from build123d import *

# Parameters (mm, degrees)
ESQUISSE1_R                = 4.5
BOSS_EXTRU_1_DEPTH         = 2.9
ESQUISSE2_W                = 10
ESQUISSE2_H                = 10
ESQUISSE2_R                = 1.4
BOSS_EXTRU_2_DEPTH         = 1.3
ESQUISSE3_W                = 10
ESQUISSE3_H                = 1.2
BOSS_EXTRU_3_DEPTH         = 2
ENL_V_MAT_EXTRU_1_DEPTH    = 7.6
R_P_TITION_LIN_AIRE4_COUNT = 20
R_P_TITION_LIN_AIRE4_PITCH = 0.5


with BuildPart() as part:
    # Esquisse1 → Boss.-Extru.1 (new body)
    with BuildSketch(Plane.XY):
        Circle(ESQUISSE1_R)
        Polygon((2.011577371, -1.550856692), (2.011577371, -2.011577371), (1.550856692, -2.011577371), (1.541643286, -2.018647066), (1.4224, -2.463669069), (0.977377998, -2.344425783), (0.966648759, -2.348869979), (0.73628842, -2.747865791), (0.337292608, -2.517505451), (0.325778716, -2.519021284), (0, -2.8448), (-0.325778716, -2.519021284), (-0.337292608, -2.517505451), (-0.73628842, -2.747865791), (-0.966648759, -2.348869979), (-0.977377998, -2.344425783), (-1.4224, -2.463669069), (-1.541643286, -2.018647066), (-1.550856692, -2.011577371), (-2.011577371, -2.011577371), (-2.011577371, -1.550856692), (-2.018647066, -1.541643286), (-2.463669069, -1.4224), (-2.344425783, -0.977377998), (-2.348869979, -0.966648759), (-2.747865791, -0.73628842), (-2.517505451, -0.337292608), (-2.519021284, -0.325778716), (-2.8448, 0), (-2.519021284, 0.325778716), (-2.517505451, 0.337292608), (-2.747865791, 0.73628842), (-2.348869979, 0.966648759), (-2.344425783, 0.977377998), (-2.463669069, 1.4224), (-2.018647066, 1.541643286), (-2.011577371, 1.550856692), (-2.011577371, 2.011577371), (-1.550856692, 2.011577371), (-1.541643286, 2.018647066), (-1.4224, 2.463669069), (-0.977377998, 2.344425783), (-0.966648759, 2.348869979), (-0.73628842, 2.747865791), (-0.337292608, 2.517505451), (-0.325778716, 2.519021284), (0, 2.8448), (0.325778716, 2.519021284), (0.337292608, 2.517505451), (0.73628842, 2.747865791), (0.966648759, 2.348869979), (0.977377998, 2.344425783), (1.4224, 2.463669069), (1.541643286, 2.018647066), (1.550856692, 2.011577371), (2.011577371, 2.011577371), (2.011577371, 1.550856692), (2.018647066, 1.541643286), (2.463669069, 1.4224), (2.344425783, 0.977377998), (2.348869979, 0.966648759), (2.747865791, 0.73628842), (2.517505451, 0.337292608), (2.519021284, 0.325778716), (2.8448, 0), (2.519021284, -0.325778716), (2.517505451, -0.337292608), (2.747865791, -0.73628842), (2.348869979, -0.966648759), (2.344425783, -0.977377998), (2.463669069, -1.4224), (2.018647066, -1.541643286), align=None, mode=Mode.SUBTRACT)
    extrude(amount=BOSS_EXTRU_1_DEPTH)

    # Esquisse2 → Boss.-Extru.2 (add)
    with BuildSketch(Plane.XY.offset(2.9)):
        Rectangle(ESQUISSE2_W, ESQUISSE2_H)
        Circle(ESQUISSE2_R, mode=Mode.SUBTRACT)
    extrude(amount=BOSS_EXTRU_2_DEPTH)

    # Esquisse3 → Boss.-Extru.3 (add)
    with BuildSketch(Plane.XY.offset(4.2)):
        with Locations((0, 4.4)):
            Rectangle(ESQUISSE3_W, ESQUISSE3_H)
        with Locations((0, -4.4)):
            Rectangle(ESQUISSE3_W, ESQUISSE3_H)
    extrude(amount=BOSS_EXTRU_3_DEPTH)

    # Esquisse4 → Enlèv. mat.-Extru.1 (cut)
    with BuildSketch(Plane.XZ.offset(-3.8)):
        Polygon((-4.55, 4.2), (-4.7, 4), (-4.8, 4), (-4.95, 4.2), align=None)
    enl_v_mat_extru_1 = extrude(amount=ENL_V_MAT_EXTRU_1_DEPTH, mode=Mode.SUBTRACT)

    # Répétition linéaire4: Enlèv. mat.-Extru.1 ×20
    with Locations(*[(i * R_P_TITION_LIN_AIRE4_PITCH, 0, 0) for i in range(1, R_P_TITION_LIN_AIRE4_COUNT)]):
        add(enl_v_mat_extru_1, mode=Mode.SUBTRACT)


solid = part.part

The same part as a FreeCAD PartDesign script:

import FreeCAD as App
import Part
import Sketcher
Q = App.Units.Quantity

doc = App.newDocument("Part")
body = doc.addObject("PartDesign::Body", "Body")

# Sketch on XY plane
sketch1 = doc.addObject("Sketcher::SketchObject", "Sketch")
body.addObject(sketch1)
sketch1.AttachmentSupport = (doc.XY_Plane, [""])
sketch1.MapMode = "FlatFace"
sketch1.addGeometry([
    Part.Circle(App.Vector(0, 0, 0), App.Vector(0, 0, 1), 4.5),  # 0
    Part.LineSegment(App.Vector(2.019, -1.542, 0), App.Vector(2.012, -1.551, 0)),  # 1
    Part.LineSegment(App.Vector(2.012, -1.551, 0), App.Vector(2.012, -2.012, 0)),  # 2
    Part.LineSegment(App.Vector(2.012, -2.012, 0), App.Vector(1.551, -2.012, 0)),  # 3
    Part.LineSegment(App.Vector(1.551, -2.012, 0), App.Vector(1.542, -2.019, 0)),  # 4
    Part.LineSegment(App.Vector(1.542, -2.019, 0), App.Vector(1.422, -2.464, 0)),  # 5
    Part.LineSegment(App.Vector(1.422, -2.464, 0), App.Vector(0.977, -2.344, 0)),  # 6
    Part.LineSegment(App.Vector(0.977, -2.344, 0), App.Vector(0.967, -2.349, 0)),  # 7
    Part.LineSegment(App.Vector(0.967, -2.349, 0), App.Vector(0.736, -2.748, 0)),  # 8
    Part.LineSegment(App.Vector(0.736, -2.748, 0), App.Vector(0.337, -2.518, 0)),  # 9
    Part.LineSegment(App.Vector(0.337, -2.518, 0), App.Vector(0.326, -2.519, 0)),  # 10
    Part.LineSegment(App.Vector(0.326, -2.519, 0), App.Vector(0, -2.845, 0)),  # 11
    Part.LineSegment(App.Vector(0, -2.845, 0), App.Vector(-0.326, -2.519, 0)),  # 12
    Part.LineSegment(App.Vector(-0.326, -2.519, 0), App.Vector(-0.337, -2.518, 0)),  # 13
    Part.LineSegment(App.Vector(-0.337, -2.518, 0), App.Vector(-0.736, -2.748, 0)),  # 14
    Part.LineSegment(App.Vector(-0.736, -2.748, 0), App.Vector(-0.967, -2.349, 0)),  # 15
    Part.LineSegment(App.Vector(-0.967, -2.349, 0), App.Vector(-0.977, -2.344, 0)),  # 16
    Part.LineSegment(App.Vector(-0.977, -2.344, 0), App.Vector(-1.422, -2.464, 0)),  # 17
    Part.LineSegment(App.Vector(-1.422, -2.464, 0), App.Vector(-1.542, -2.019, 0)),  # 18
    Part.LineSegment(App.Vector(-1.542, -2.019, 0), App.Vector(-1.551, -2.012, 0)),  # 19
    Part.LineSegment(App.Vector(-1.551, -2.012, 0), App.Vector(-2.012, -2.012, 0)),  # 20
    Part.LineSegment(App.Vector(-2.012, -2.012, 0), App.Vector(-2.012, -1.551, 0)),  # 21
    Part.LineSegment(App.Vector(-2.012, -1.551, 0), App.Vector(-2.019, -1.542, 0)),  # 22
    Part.LineSegment(App.Vector(-2.019, -1.542, 0), App.Vector(-2.464, -1.422, 0)),  # 23
    Part.LineSegment(App.Vector(-2.464, -1.422, 0), App.Vector(-2.344, -0.977, 0)),  # 24
    Part.LineSegment(App.Vector(-2.344, -0.977, 0), App.Vector(-2.349, -0.967, 0)),  # 25
    Part.LineSegment(App.Vector(-2.349, -0.967, 0), App.Vector(-2.748, -0.736, 0)),  # 26
    Part.LineSegment(App.Vector(-2.748, -0.736, 0), App.Vector(-2.518, -0.337, 0)),  # 27
    Part.LineSegment(App.Vector(-2.518, -0.337, 0), App.Vector(-2.519, -0.326, 0)),  # 28
    Part.LineSegment(App.Vector(-2.519, -0.326, 0), App.Vector(-2.845, 0, 0)),  # 29
    Part.LineSegment(App.Vector(-2.845, 0, 0), App.Vector(-2.519, 0.326, 0)),  # 30
    Part.LineSegment(App.Vector(-2.519, 0.326, 0), App.Vector(-2.518, 0.337, 0)),  # 31
    Part.LineSegment(App.Vector(-2.518, 0.337, 0), App.Vector(-2.748, 0.736, 0)),  # 32
    Part.LineSegment(App.Vector(-2.748, 0.736, 0), App.Vector(-2.349, 0.967, 0)),  # 33
    Part.LineSegment(App.Vector(-2.349, 0.967, 0), App.Vector(-2.344, 0.977, 0)),  # 34
    Part.LineSegment(App.Vector(-2.344, 0.977, 0), App.Vector(-2.464, 1.422, 0)),  # 35
    Part.LineSegment(App.Vector(-2.464, 1.422, 0), App.Vector(-2.019, 1.542, 0)),  # 36
    Part.LineSegment(App.Vector(-2.019, 1.542, 0), App.Vector(-2.012, 1.551, 0)),  # 37
    Part.LineSegment(App.Vector(-2.012, 1.551, 0), App.Vector(-2.012, 2.012, 0)),  # 38
    Part.LineSegment(App.Vector(-2.012, 2.012, 0), App.Vector(-1.551, 2.012, 0)),  # 39
    Part.LineSegment(App.Vector(-1.551, 2.012, 0), App.Vector(-1.542, 2.019, 0)),  # 40
    Part.LineSegment(App.Vector(-1.542, 2.019, 0), App.Vector(-1.422, 2.464, 0)),  # 41
    Part.LineSegment(App.Vector(-1.422, 2.464, 0), App.Vector(-0.977, 2.344, 0)),  # 42
    Part.LineSegment(App.Vector(-0.977, 2.344, 0), App.Vector(-0.967, 2.349, 0)),  # 43
    Part.LineSegment(App.Vector(-0.967, 2.349, 0), App.Vector(-0.736, 2.748, 0)),  # 44
    Part.LineSegment(App.Vector(-0.736, 2.748, 0), App.Vector(-0.337, 2.518, 0)),  # 45
    Part.LineSegment(App.Vector(-0.337, 2.518, 0), App.Vector(-0.326, 2.519, 0)),  # 46
    Part.LineSegment(App.Vector(-0.326, 2.519, 0), App.Vector(0, 2.845, 0)),  # 47
    Part.LineSegment(App.Vector(0, 2.845, 0), App.Vector(0.326, 2.519, 0)),  # 48
    Part.LineSegment(App.Vector(0.326, 2.519, 0), App.Vector(0.337, 2.518, 0)),  # 49
    Part.LineSegment(App.Vector(0.337, 2.518, 0), App.Vector(0.736, 2.748, 0)),  # 50
    Part.LineSegment(App.Vector(0.736, 2.748, 0), App.Vector(0.967, 2.349, 0)),  # 51
    Part.LineSegment(App.Vector(0.967, 2.349, 0), App.Vector(0.977, 2.344, 0)),  # 52
    Part.LineSegment(App.Vector(0.977, 2.344, 0), App.Vector(1.422, 2.464, 0)),  # 53
    Part.LineSegment(App.Vector(1.422, 2.464, 0), App.Vector(1.542, 2.019, 0)),  # 54
    Part.LineSegment(App.Vector(1.542, 2.019, 0), App.Vector(1.551, 2.012, 0)),  # 55
    Part.LineSegment(App.Vector(1.551, 2.012, 0), App.Vector(2.012, 2.012, 0)),  # 56
    Part.LineSegment(App.Vector(2.012, 2.012, 0), App.Vector(2.012, 1.551, 0)),  # 57
    Part.LineSegment(App.Vector(2.012, 1.551, 0), App.Vector(2.019, 1.542, 0)),  # 58
    Part.LineSegment(App.Vector(2.019, 1.542, 0), App.Vector(2.464, 1.422, 0)),  # 59
    Part.LineSegment(App.Vector(2.464, 1.422, 0), App.Vector(2.344, 0.977, 0)),  # 60
    Part.LineSegment(App.Vector(2.344, 0.977, 0), App.Vector(2.349, 0.967, 0)),  # 61
    Part.LineSegment(App.Vector(2.349, 0.967, 0), App.Vector(2.748, 0.736, 0)),  # 62
    Part.LineSegment(App.Vector(2.748, 0.736, 0), App.Vector(2.518, 0.337, 0)),  # 63
    Part.LineSegment(App.Vector(2.518, 0.337, 0), App.Vector(2.519, 0.326, 0)),  # 64
    Part.LineSegment(App.Vector(2.519, 0.326, 0), App.Vector(2.845, 0, 0)),  # 65
    Part.LineSegment(App.Vector(2.845, 0, 0), App.Vector(2.519, -0.326, 0)),  # 66
    Part.LineSegment(App.Vector(2.519, -0.326, 0), App.Vector(2.518, -0.337, 0)),  # 67
    Part.LineSegment(App.Vector(2.518, -0.337, 0), App.Vector(2.748, -0.736, 0)),  # 68
    Part.LineSegment(App.Vector(2.748, -0.736, 0), App.Vector(2.349, -0.967, 0)),  # 69
    Part.LineSegment(App.Vector(2.349, -0.967, 0), App.Vector(2.344, -0.977, 0)),  # 70
    Part.LineSegment(App.Vector(2.344, -0.977, 0), App.Vector(2.464, -1.422, 0)),  # 71
    Part.LineSegment(App.Vector(2.464, -1.422, 0), App.Vector(2.019, -1.542, 0)),  # 72
], False)
sketch1.addConstraint([
    Sketcher.Constraint("Coincident", 1, 2, 2, 1),
    Sketcher.Constraint("Coincident", 2, 2, 3, 1),
    Sketcher.Constraint("Coincident", 3, 2, 4, 1),
    Sketcher.Constraint("Coincident", 4, 2, 5, 1),
    Sketcher.Constraint("Coincident", 5, 2, 6, 1),
    Sketcher.Constraint("Coincident", 6, 2, 7, 1),
    Sketcher.Constraint("Coincident", 7, 2, 8, 1),
    Sketcher.Constraint("Coincident", 8, 2, 9, 1),
    Sketcher.Constraint("Coincident", 9, 2, 10, 1),
    Sketcher.Constraint("Coincident", 10, 2, 11, 1),
    Sketcher.Constraint("Coincident", 11, 2, 12, 1),
    Sketcher.Constraint("Coincident", 12, 2, 13, 1),
    Sketcher.Constraint("Coincident", 13, 2, 14, 1),
    Sketcher.Constraint("Coincident", 14, 2, 15, 1),
    Sketcher.Constraint("Coincident", 15, 2, 16, 1),
    Sketcher.Constraint("Coincident", 16, 2, 17, 1),
    Sketcher.Constraint("Coincident", 17, 2, 18, 1),
    Sketcher.Constraint("Coincident", 18, 2, 19, 1),
    Sketcher.Constraint("Coincident", 19, 2, 20, 1),
    Sketcher.Constraint("Coincident", 20, 2, 21, 1),
    Sketcher.Constraint("Coincident", 21, 2, 22, 1),
    Sketcher.Constraint("Coincident", 22, 2, 23, 1),
    Sketcher.Constraint("Coincident", 23, 2, 24, 1),
    Sketcher.Constraint("Coincident", 24, 2, 25, 1),
    Sketcher.Constraint("Coincident", 25, 2, 26, 1),
    Sketcher.Constraint("Coincident", 26, 2, 27, 1),
    Sketcher.Constraint("Coincident", 27, 2, 28, 1),
    Sketcher.Constraint("Coincident", 28, 2, 29, 1),
    Sketcher.Constraint("Coincident", 29, 2, 30, 1),
    Sketcher.Constraint("Coincident", 30, 2, 31, 1),
    Sketcher.Constraint("Coincident", 31, 2, 32, 1),
    Sketcher.Constraint("Coincident", 32, 2, 33, 1),
    Sketcher.Constraint("Coincident", 33, 2, 34, 1),
    Sketcher.Constraint("Coincident", 34, 2, 35, 1),
    Sketcher.Constraint("Coincident", 35, 2, 36, 1),
    Sketcher.Constraint("Coincident", 36, 2, 37, 1),
    Sketcher.Constraint("Coincident", 37, 2, 38, 1),
    Sketcher.Constraint("Coincident", 38, 2, 39, 1),
    Sketcher.Constraint("Coincident", 39, 2, 40, 1),
    Sketcher.Constraint("Coincident", 40, 2, 41, 1),
    Sketcher.Constraint("Coincident", 41, 2, 42, 1),
    Sketcher.Constraint("Coincident", 42, 2, 43, 1),
    Sketcher.Constraint("Coincident", 43, 2, 44, 1),
    Sketcher.Constraint("Coincident", 44, 2, 45, 1),
    Sketcher.Constraint("Coincident", 45, 2, 46, 1),
    Sketcher.Constraint("Coincident", 46, 2, 47, 1),
    Sketcher.Constraint("Coincident", 47, 2, 48, 1),
    Sketcher.Constraint("Coincident", 48, 2, 49, 1),
    Sketcher.Constraint("Coincident", 49, 2, 50, 1),
    Sketcher.Constraint("Coincident", 50, 2, 51, 1),
    Sketcher.Constraint("Coincident", 51, 2, 52, 1),
    Sketcher.Constraint("Coincident", 52, 2, 53, 1),
    Sketcher.Constraint("Coincident", 53, 2, 54, 1),
    Sketcher.Constraint("Coincident", 54, 2, 55, 1),
    Sketcher.Constraint("Coincident", 55, 2, 56, 1),
    Sketcher.Constraint("Coincident", 56, 2, 57, 1),
    Sketcher.Constraint("Coincident", 57, 2, 58, 1),
    Sketcher.Constraint("Coincident", 58, 2, 59, 1),
    Sketcher.Constraint("Coincident", 59, 2, 60, 1),
    Sketcher.Constraint("Coincident", 60, 2, 61, 1),
    Sketcher.Constraint("Coincident", 61, 2, 62, 1),
    Sketcher.Constraint("Coincident", 62, 2, 63, 1),
    Sketcher.Constraint("Coincident", 63, 2, 64, 1),
    Sketcher.Constraint("Coincident", 64, 2, 65, 1),
    Sketcher.Constraint("Coincident", 65, 2, 66, 1),
    Sketcher.Constraint("Coincident", 66, 2, 67, 1),
    Sketcher.Constraint("Coincident", 67, 2, 68, 1),
    Sketcher.Constraint("Coincident", 68, 2, 69, 1),
    Sketcher.Constraint("Coincident", 69, 2, 70, 1),
    Sketcher.Constraint("Coincident", 70, 2, 71, 1),
    Sketcher.Constraint("Coincident", 71, 2, 72, 1),
    Sketcher.Constraint("Coincident", 72, 2, 1, 1),
    Sketcher.Constraint("Vertical", 2),
    Sketcher.Constraint("Horizontal", 3),
    Sketcher.Constraint("Horizontal", 20),
    Sketcher.Constraint("Vertical", 21),
    Sketcher.Constraint("Vertical", 38),
    Sketcher.Constraint("Horizontal", 39),
    Sketcher.Constraint("Horizontal", 56),
    Sketcher.Constraint("Vertical", 57),
    Sketcher.Constraint("Coincident", 0, 3, -1, 1),
    Sketcher.Constraint("Symmetric", 1, 2, 37, 2, -1, 1),
    Sketcher.Constraint("Symmetric", 3, 2, 39, 2, -1, 1),
    Sketcher.Constraint("Symmetric", 4, 2, 40, 2, -1, 1),
    Sketcher.Constraint("Symmetric", 5, 2, 41, 2, -1, 1),
    Sketcher.Constraint("Symmetric", 6, 2, 42, 2, -1, 1),
    Sketcher.Constraint("Symmetric", 7, 2, 43, 2, -1, 1),
    Sketcher.Constraint("Symmetric", 8, 2, 44, 2, -1, 1),
    Sketcher.Constraint("Symmetric", 9, 2, 45, 2, -1, 1),
    Sketcher.Constraint("Symmetric", 10, 2, 46, 2, -1, 1),
    Sketcher.Constraint("Symmetric", 11, 2, 47, 2, -1, 1),
    Sketcher.Constraint("Symmetric", 12, 2, 48, 2, -1, 1),
    Sketcher.Constraint("Symmetric", 13, 2, 49, 2, -1, 1),
    Sketcher.Constraint("Symmetric", 14, 2, 50, 2, -1, 1),
    Sketcher.Constraint("Symmetric", 15, 2, 51, 2, -1, 1),
    Sketcher.Constraint("Symmetric", 16, 2, 52, 2, -1, 1),
    Sketcher.Constraint("Symmetric", 17, 2, 53, 2, -1, 1),
    Sketcher.Constraint("Symmetric", 18, 2, 54, 2, -1, 1),
    Sketcher.Constraint("Symmetric", 19, 2, 55, 2, -1, 1),
    Sketcher.Constraint("Symmetric", 21, 2, 57, 2, -1, 1),
    Sketcher.Constraint("Symmetric", 22, 2, 58, 2, -1, 1),
    Sketcher.Constraint("Symmetric", 23, 2, 59, 2, -1, 1),
    Sketcher.Constraint("Symmetric", 24, 2, 60, 2, -1, 1),
    Sketcher.Constraint("Symmetric", 25, 2, 61, 2, -1, 1),
    Sketcher.Constraint("Symmetric", 26, 2, 62, 2, -1, 1),
    Sketcher.Constraint("Symmetric", 27, 2, 63, 2, -1, 1),
    Sketcher.Constraint("Symmetric", 28, 2, 64, 2, -1, 1),
    Sketcher.Constraint("Symmetric", 29, 2, 65, 2, -1, 1),
    Sketcher.Constraint("Symmetric", 30, 2, 66, 2, -1, 1),
    Sketcher.Constraint("Symmetric", 31, 2, 67, 2, -1, 1),
    Sketcher.Constraint("Symmetric", 32, 2, 68, 2, -1, 1),
    Sketcher.Constraint("Symmetric", 33, 2, 69, 2, -1, 1),
    Sketcher.Constraint("Symmetric", 34, 2, 70, 2, -1, 1),
    Sketcher.Constraint("Symmetric", 35, 2, 71, 2, -1, 1),
    Sketcher.Constraint("Symmetric", 36, 2, 72, 2, -1, 1),
    Sketcher.Constraint("Symmetric", 10, 2, 12, 2, -2),
    Sketcher.Constraint("Symmetric", 9, 2, 13, 2, -2),
    Sketcher.Constraint("Symmetric", 8, 2, 14, 2, -2),
    Sketcher.Constraint("Symmetric", 7, 2, 15, 2, -2),
    Sketcher.Constraint("Symmetric", 6, 2, 16, 2, -2),
    Sketcher.Constraint("Symmetric", 5, 2, 17, 2, -2),
    Sketcher.Constraint("Symmetric", 4, 2, 18, 2, -2),
    Sketcher.Constraint("Symmetric", 3, 2, 19, 2, -2),
    Sketcher.Constraint("Symmetric", 1, 2, 21, 2, -2),
    Sketcher.Constraint("Symmetric", 36, 2, 58, 2, -2),
    Sketcher.Constraint("Symmetric", 35, 2, 59, 2, -2),
    Sketcher.Constraint("Symmetric", 34, 2, 60, 2, -2),
    Sketcher.Constraint("Symmetric", 33, 2, 61, 2, -2),
    Sketcher.Constraint("Symmetric", 32, 2, 62, 2, -2),
    Sketcher.Constraint("Symmetric", 31, 2, 63, 2, -2),
    Sketcher.Constraint("Symmetric", 30, 2, 64, 2, -2),
    Sketcher.Constraint("PointOnObject", 11, 2, -2),
    Sketcher.Constraint("PointOnObject", 29, 2, -1),
    Sketcher.Constraint("Perpendicular", 5, 6),
    Sketcher.Constraint("Perpendicular", 8, 9),
    Sketcher.Constraint("Perpendicular", 11, 12),
    Sketcher.Constraint("Perpendicular", 1, 19),
    Sketcher.Constraint("Parallel", 6, 23),
    Sketcher.Constraint("Perpendicular", 23, 24),
    Sketcher.Constraint("Perpendicular", 7, 25),
    Sketcher.Constraint("Parallel", 9, 26),
    Sketcher.Constraint("Perpendicular", 26, 27),
    Sketcher.Constraint("Perpendicular", 10, 28),
    Sketcher.Constraint("Parallel", 12, 29),
    Sketcher.Constraint("Equal", 56, 2),
    Sketcher.Constraint("Equal", 1, 4),
    Sketcher.Constraint("Equal", 5, 6),
    Sketcher.Constraint("Equal", 4, 7),
    Sketcher.Constraint("Equal", 6, 8),
    Sketcher.Constraint("Equal", 8, 9),
    Sketcher.Constraint("Equal", 7, 10),
    Sketcher.Constraint("Equal", 9, 11),
    Sketcher.Constraint("Equal", 18, 23),
    Sketcher.Constraint("Equal", 23, 24),
    Sketcher.Constraint("Equal", 22, 25),
    Sketcher.Constraint("Equal", 24, 26),
    Sketcher.Constraint("Equal", 26, 27),
    Sketcher.Constraint("Equal", 25, 28),
    Sketcher.Constraint("Equal", 27, 29),
    Sketcher.Constraint("Diameter", 0, Q("9 mm")),
    Sketcher.Constraint("Angle", 5, Q("-105 deg")),
    Sketcher.Constraint("Angle", 8, Q("-120 deg")),
    Sketcher.Constraint("Angle", 1, Q("-127.5 deg")),
    Sketcher.Constraint("Angle", 7, Q("-157.500001 deg")),
    Sketcher.Constraint("Angle", 10, Q("-172.499998 deg")),
    Sketcher.Constraint("DistanceX", 3, 2, 3, 1, Q("0.460721 mm")),
    Sketcher.Constraint("DistanceX", -1, 1, 5, 2, Q("1.4224 mm")),
    Sketcher.Constraint("DistanceY", 11, 2, -1, 1, Q("2.8448 mm")),
])
pad1 = doc.addObject("PartDesign::Pad", "Pad")
body.addObject(pad1)
pad1.Profile = sketch1
pad1.Length = 2.9

# Sketch on XY plane
sketch2 = doc.addObject("Sketcher::SketchObject", "Sketch001")
body.addObject(sketch2)
sketch2.AttachmentSupport = (doc.XY_Plane, [""])
sketch2.MapMode = "FlatFace"
sketch2.AttachmentOffset = App.Placement(App.Vector(0, 0, 2.9), App.Rotation())
sketch2.addGeometry([
    Part.LineSegment(App.Vector(-5, 5, 0), App.Vector(-5, -5, 0)),  # 0
    Part.LineSegment(App.Vector(-5, -5, 0), App.Vector(5, -5, 0)),  # 1
    Part.LineSegment(App.Vector(5, -5, 0), App.Vector(5, 5, 0)),  # 2
    Part.LineSegment(App.Vector(5, 5, 0), App.Vector(-5, 5, 0)),  # 3
    Part.Circle(App.Vector(0, 0, 0), App.Vector(0, 0, 1), 1.4),  # 4
], False)
sketch2.addConstraint([
    Sketcher.Constraint("Coincident", 0, 2, 1, 1),
    Sketcher.Constraint("Coincident", 1, 2, 2, 1),
    Sketcher.Constraint("Coincident", 2, 2, 3, 1),
    Sketcher.Constraint("Coincident", 3, 2, 0, 1),
    Sketcher.Constraint("Vertical", 0),
    Sketcher.Constraint("Horizontal", 1),
    Sketcher.Constraint("Vertical", 2),
    Sketcher.Constraint("Horizontal", 3),
    Sketcher.Constraint("Coincident", 4, 3, -1, 1),
    Sketcher.Constraint("Symmetric", 0, 2, 2, 2, -1, 1),
    Sketcher.Constraint("Equal", 3, 0),
    Sketcher.Constraint("Diameter", 4, Q("2.8 mm")),
    Sketcher.Constraint("DistanceX", 1, 1, 1, 2, Q("10 mm")),
])
pad2 = doc.addObject("PartDesign::Pad", "Pad001")
body.addObject(pad2)
pad2.Profile = sketch2
pad2.Length = 1.3

# Sketch on XY plane
sketch3 = doc.addObject("Sketcher::SketchObject", "Sketch002")
body.addObject(sketch3)
sketch3.AttachmentSupport = (doc.XY_Plane, [""])
sketch3.MapMode = "FlatFace"
sketch3.AttachmentOffset = App.Placement(App.Vector(0, 0, 4.2), App.Rotation())
sketch3.addGeometry([
    Part.LineSegment(App.Vector(-5, 5, 0), App.Vector(-5, 3.8, 0)),  # 0
    Part.LineSegment(App.Vector(-5, 3.8, 0), App.Vector(5, 3.8, 0)),  # 1
    Part.LineSegment(App.Vector(5, 3.8, 0), App.Vector(5, 5, 0)),  # 2
    Part.LineSegment(App.Vector(5, 5, 0), App.Vector(-5, 5, 0)),  # 3
    Part.LineSegment(App.Vector(-5, -3.8, 0), App.Vector(-5, -5, 0)),  # 4
    Part.LineSegment(App.Vector(-5, -5, 0), App.Vector(5, -5, 0)),  # 5
    Part.LineSegment(App.Vector(5, -5, 0), App.Vector(5, -3.8, 0)),  # 6
    Part.LineSegment(App.Vector(5, -3.8, 0), App.Vector(-5, -3.8, 0)),  # 7
], False)
sketch3.addConstraint([
    Sketcher.Constraint("Coincident", 0, 2, 1, 1),
    Sketcher.Constraint("Coincident", 1, 2, 2, 1),
    Sketcher.Constraint("Coincident", 2, 2, 3, 1),
    Sketcher.Constraint("Coincident", 3, 2, 0, 1),
    Sketcher.Constraint("Coincident", 4, 2, 5, 1),
    Sketcher.Constraint("Coincident", 5, 2, 6, 1),
    Sketcher.Constraint("Coincident", 6, 2, 7, 1),
    Sketcher.Constraint("Coincident", 7, 2, 4, 1),
    Sketcher.Constraint("Vertical", 0),
    Sketcher.Constraint("Horizontal", 1),
    Sketcher.Constraint("Vertical", 2),
    Sketcher.Constraint("Horizontal", 3),
    Sketcher.Constraint("Vertical", 4),
    Sketcher.Constraint("Horizontal", 5),
    Sketcher.Constraint("Vertical", 6),
    Sketcher.Constraint("Horizontal", 7),
    Sketcher.Constraint("Symmetric", 2, 2, 4, 2, -1, 1),
    Sketcher.Constraint("Symmetric", 0, 2, 6, 2, -1, 1),
    Sketcher.Constraint("Vertical", 3, 2, 4, 2),
    Sketcher.Constraint("DistanceX", 1, 1, 1, 2, Q("10 mm")),
    Sketcher.Constraint("DistanceY", 0, 2, 0, 1, Q("1.2 mm")),
    Sketcher.Constraint("DistanceY", -1, 1, 2, 2, Q("5 mm")),
])
pad3 = doc.addObject("PartDesign::Pad", "Pad002")
body.addObject(pad3)
pad3.Profile = sketch3
pad3.Length = 2

# Sketch on XZ plane
sketch4 = doc.addObject("Sketcher::SketchObject", "Sketch003")
body.addObject(sketch4)
sketch4.AttachmentSupport = (doc.XZ_Plane, [""])
sketch4.MapMode = "FlatFace"
sketch4.AttachmentOffset = App.Placement(App.Vector(0, 0, -3.8), App.Rotation())
sketch4.addGeometry([
    Part.LineSegment(App.Vector(-4.7, 4, 0), App.Vector(-4.55, 4.2, 0)),
    Part.LineSegment(App.Vector(-4.55, 4.2, 0), App.Vector(-4.95, 4.2, 0)),
    Part.LineSegment(App.Vector(-4.95, 4.2, 0), App.Vector(-4.8, 4, 0)),
    Part.LineSegment(App.Vector(-4.8, 4, 0), App.Vector(-4.7, 4, 0)),
], False)
sketch4.addConstraint([
    Sketcher.Constraint("Coincident", 0, 2, 1, 1),
    Sketcher.Constraint("Coincident", 1, 2, 2, 1),
    Sketcher.Constraint("Coincident", 2, 2, 3, 1),
    Sketcher.Constraint("Coincident", 3, 2, 0, 1),
    Sketcher.Constraint("Horizontal", 1),
    Sketcher.Constraint("Horizontal", 3),
    Sketcher.Constraint("Equal", 0, 2),
    Sketcher.Constraint("DistanceX", 1, 2, 1, 1, Q("0.4 mm")),
    Sketcher.Constraint("DistanceX", 3, 1, 3, 2, Q("0.1 mm")),
    Sketcher.Constraint("DistanceY", -1, 1, 2, 2, Q("4 mm")),
    Sketcher.Constraint("DistanceY", -1, 1, 0, 2, Q("4.2 mm")),
    Sketcher.Constraint("DistanceX", 2, 2, -1, 1, Q("4.8 mm")),
])
pocket1 = doc.addObject("PartDesign::Pocket", "Pocket")
body.addObject(pocket1)
pocket1.Profile = sketch4
pocket1.Length = 7.6
pocket1.Reversed = True
doc.recompute()

linearpattern = doc.addObject("PartDesign::LinearPattern", "LinearPattern")
body.addObject(linearpattern)
linearpattern.Originals = [pocket1]
linearpattern.Direction = (doc.X_Axis, [""])
linearpattern.Mode = "offset"
linearpattern.Offset = 0.5
linearpattern.Occurrences = 20
body.Tip = linearpattern

doc.recompute()
